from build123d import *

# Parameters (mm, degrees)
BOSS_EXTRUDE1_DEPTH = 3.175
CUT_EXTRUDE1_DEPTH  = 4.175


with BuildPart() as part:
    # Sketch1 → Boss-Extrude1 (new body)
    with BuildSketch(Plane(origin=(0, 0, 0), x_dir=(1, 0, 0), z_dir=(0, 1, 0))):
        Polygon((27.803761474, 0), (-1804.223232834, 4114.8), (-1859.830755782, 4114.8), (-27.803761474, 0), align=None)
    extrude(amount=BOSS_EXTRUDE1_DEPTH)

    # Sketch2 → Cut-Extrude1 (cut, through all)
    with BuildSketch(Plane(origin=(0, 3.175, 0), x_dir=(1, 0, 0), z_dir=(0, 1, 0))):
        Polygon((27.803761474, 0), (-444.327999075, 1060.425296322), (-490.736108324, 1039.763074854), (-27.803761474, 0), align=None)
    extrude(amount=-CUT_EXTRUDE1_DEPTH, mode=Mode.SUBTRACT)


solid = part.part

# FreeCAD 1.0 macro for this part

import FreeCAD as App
import Part
import Sketcher
Q = App.Units.Quantity

doc = App.newDocument("Part")
body = doc.addObject("PartDesign::Body", "Body")

# Sketch on XZ plane
sketch1 = doc.addObject("Sketcher::SketchObject", "Sketch")
body.addObject(sketch1)
sketch1.AttachmentSupport = (doc.XZ_Plane, [""])
sketch1.MapMode = "FlatFace"
sketch1.addGeometry([
    Part.LineSegment(App.Vector(28, 0, 0), App.Vector(-1804, -4115, 0)),
    Part.LineSegment(App.Vector(-1804, -4115, 0), App.Vector(-1860, -4115, 0)),
    Part.LineSegment(App.Vector(-1860, -4115, 0), App.Vector(-28, 0, 0)),
    Part.LineSegment(App.Vector(-28, 0, 0), App.Vector(28, 0, 0)),
], False)
sketch1.addConstraint([
    Sketcher.Constraint("Coincident", 0, 2, 1, 1),
    Sketcher.Constraint("Coincident", 1, 2, 2, 1),
    Sketcher.Constraint("Coincident", 2, 2, 3, 1),
    Sketcher.Constraint("Coincident", 3, 2, 0, 1),
    Sketcher.Constraint("Horizontal", 1),
    Sketcher.Constraint("Horizontal", 3),
    Sketcher.Constraint("Symmetric", 2, 2, 3, 2, -1, 1),
    Sketcher.Constraint("Parallel", 0, 2),
    Sketcher.Constraint("DistanceY", 0, 2, -1, 1, Q("162 in")),
    Sketcher.Constraint("Angle", 0, Q("-114 deg")),
    Sketcher.Constraint("DistanceX", 1, 2, 1, 1, Q("55.607523 mm")),
])
pad1 = doc.addObject("PartDesign::Pad", "Pad")
body.addObject(pad1)
pad1.Profile = sketch1
pad1.Length = Q("0.125 in")
pad1.Reversed = True

# Sketch on XZ plane
sketch2 = doc.addObject("Sketcher::SketchObject", "Sketch001")
body.addObject(sketch2)
sketch2.AttachmentSupport = (doc.XZ_Plane, [""])
sketch2.MapMode = "FlatFace"
sketch2.AttachmentOffset = App.Placement(App.Vector(0, 0, -0.125 * 25.4), App.Rotation())
sketch2.addGeometry([
    Part.LineSegment(App.Vector(28, 0, 0), App.Vector(-444, -1060, 0)),
    Part.LineSegment(App.Vector(-444, -1060, 0), App.Vector(-491, -1040, 0)),
    Part.LineSegment(App.Vector(-491, -1040, 0), App.Vector(-28, 0, 0)),
    Part.LineSegment(App.Vector(-28, 0, 0), App.Vector(28, 0, 0)),
], False)
sketch2.addConstraint([
    Sketcher.Constraint("Coincident", 0, 2, 1, 1),
    Sketcher.Constraint("Coincident", 1, 2, 2, 1),
    Sketcher.Constraint("Coincident", 2, 2, 3, 1),
    Sketcher.Constraint("Coincident", 3, 2, 0, 1),
    Sketcher.Constraint("Horizontal", 3),
    Sketcher.Constraint("Symmetric", 2, 2, 3, 2, -1, 1),
    Sketcher.Constraint("Perpendicular", 0, 1),
    Sketcher.Constraint("Perpendicular", 1, 2),
    Sketcher.Constraint("Distance", 1, Q("2 in")),
    Sketcher.Constraint("Angle", 0, Q("-114 deg")),
    Sketcher.Constraint("Distance", 0, Q("45.7 in")),
])
pocket1 = doc.addObject("PartDesign::Pocket", "Pocket")
body.addObject(pocket1)
pocket1.Profile = sketch2
pocket1.Type = "ThroughAll"
pocket1.Reversed = True

doc.recompute()
